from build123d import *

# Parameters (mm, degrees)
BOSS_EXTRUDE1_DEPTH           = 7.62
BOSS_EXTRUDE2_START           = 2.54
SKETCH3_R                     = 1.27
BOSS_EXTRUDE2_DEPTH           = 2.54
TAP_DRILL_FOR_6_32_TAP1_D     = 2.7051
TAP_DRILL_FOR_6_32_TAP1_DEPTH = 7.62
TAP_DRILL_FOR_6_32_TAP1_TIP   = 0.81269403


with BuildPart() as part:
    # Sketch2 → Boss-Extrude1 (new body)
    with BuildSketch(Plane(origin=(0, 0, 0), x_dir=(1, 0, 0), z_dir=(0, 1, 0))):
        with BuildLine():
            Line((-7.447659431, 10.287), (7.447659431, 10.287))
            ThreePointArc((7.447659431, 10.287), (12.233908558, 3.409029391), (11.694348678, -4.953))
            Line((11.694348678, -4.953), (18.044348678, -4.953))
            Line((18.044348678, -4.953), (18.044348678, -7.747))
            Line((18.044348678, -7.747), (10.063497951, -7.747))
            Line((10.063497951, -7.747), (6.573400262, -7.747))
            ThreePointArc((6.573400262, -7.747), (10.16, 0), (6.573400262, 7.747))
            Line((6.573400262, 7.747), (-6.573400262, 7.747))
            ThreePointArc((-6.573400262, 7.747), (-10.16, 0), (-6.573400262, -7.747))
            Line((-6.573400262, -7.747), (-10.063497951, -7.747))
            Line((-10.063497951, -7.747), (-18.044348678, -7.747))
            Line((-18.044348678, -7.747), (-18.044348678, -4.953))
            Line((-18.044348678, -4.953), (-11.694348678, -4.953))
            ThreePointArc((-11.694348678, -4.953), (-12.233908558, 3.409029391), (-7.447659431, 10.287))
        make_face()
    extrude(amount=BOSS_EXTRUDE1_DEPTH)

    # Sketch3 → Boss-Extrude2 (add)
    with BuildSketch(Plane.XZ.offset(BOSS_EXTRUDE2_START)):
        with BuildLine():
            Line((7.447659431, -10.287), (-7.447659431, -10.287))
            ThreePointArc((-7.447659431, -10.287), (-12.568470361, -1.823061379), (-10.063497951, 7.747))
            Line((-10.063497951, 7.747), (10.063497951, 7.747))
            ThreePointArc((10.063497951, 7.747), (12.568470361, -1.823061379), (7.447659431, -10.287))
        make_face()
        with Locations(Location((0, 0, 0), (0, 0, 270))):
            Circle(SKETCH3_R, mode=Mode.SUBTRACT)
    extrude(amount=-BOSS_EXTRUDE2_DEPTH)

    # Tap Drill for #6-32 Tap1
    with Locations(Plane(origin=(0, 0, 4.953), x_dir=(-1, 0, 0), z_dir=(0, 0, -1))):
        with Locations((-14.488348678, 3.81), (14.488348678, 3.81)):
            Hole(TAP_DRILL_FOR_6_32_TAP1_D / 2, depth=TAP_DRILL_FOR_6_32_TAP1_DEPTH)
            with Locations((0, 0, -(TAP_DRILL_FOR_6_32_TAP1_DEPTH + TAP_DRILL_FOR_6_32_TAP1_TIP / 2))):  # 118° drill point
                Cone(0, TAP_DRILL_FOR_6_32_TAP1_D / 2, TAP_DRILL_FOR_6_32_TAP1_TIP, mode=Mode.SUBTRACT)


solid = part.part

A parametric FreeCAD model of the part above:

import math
import FreeCAD as App
import Part
import Sketcher
from FreeCAD import Vector
Q = App.Units.Quantity

doc = App.newDocument("Part")
body = doc.addObject("PartDesign::Body", "Body")

sketch1 = body.newObject("Sketcher::SketchObject", "Sketch")
sketch1.AttachmentSupport = (doc.getObject("XZ_Plane"), [""])
sketch1.MapMode = "FlatFace"
sketch1.addGeometry([
    Part.LineSegment(Vector(7.4, -10.3, 0), Vector(-7.4, -10.3, 0)),
    Part.ArcOfCircle(Part.Circle(Vector(0, 0, 0), Vector(0, 0, 1), 12.7), math.radians(157), math.radians(234)),
    Part.LineSegment(Vector(-11.7, 5, 0), Vector(-18, 5, 0)),
    Part.LineSegment(Vector(-18, 5, 0), Vector(-18, 7.7, 0)),
    Part.LineSegment(Vector(-18, 7.7, 0), Vector(-6.6, 7.7, 0)),
    Part.ArcOfCircle(Part.Circle(Vector(0, 0, 0), Vector(0, 0, 1), 10.2), math.radians(130), math.radians(230)),
    Part.LineSegment(Vector(-6.6, -7.7, 0), Vector(6.6, -7.7, 0)),
    Part.ArcOfCircle(Part.Circle(Vector(0, 0, 0), Vector(0, 0, 1), 10.2), math.radians(-50), math.radians(50)),
    Part.LineSegment(Vector(6.6, 7.7, 0), Vector(18, 7.7, 0)),
    Part.LineSegment(Vector(18, 7.7, 0), Vector(18, 5, 0)),
    Part.LineSegment(Vector(18, 5, 0), Vector(11.7, 5, 0)),
    Part.ArcOfCircle(Part.Circle(Vector(0, 0, 0), Vector(0, 0, 1), 12.7), math.radians(-54), math.radians(23)),
], False)
sketch1.addConstraint([
    Sketcher.Constraint("Coincident", 0, 2, 1, 2),
    Sketcher.Constraint("Coincident", 1, 1, 2, 1),
    Sketcher.Constraint("Coincident", 2, 2, 3, 1),
    Sketcher.Constraint("Coincident", 3, 2, 4, 1),
    Sketcher.Constraint("Coincident", 4, 2, 5, 1),
    Sketcher.Constraint("Coincident", 5, 2, 6, 1),
    Sketcher.Constraint("Coincident", 6, 2, 7, 1),
    Sketcher.Constraint("Coincident", 7, 2, 8, 1),
    Sketcher.Constraint("Coincident", 8, 2, 9, 1),
    Sketcher.Constraint("Coincident", 9, 2, 10, 1),
    Sketcher.Constraint("Coincident", 10, 2, 11, 2),
    Sketcher.Constraint("Coincident", 11, 1, 0, 1),
    Sketcher.Constraint("Horizontal", 0),
    Sketcher.Constraint("Horizontal", 2),
    Sketcher.Constraint("Vertical", 3),
    Sketcher.Constraint("Horizontal", 4),
    Sketcher.Constraint("Horizontal", 6),
    Sketcher.Constraint("Horizontal", 8),
    Sketcher.Constraint("Vertical", 9),
    Sketcher.Constraint("Horizontal", 10),
    Sketcher.Constraint("Coincident", 1, 3, -1, 1),
    Sketcher.Constraint("Coincident", 5, 3, -1, 1),
    Sketcher.Constraint("Coincident", 7, 3, -1, 1),
    Sketcher.Constraint("Coincident", 11, 3, -1, 1),
    Sketcher.Constraint("Equal", 5, 7),
    Sketcher.Constraint("Equal", 1, 11),
    Sketcher.Constraint("Symmetric", 3, 2, 8, 2, -2),
    Sketcher.Constraint("Horizontal", 2, 2, 9, 2),
    Sketcher.Constraint("Vertical", 4, 2, 5, 2),
    Sketcher.Constraint("Radius", 1, Q("0.5 in")),
    Sketcher.Constraint("Radius", 5, Q("0.4 in")),
    Sketcher.Constraint("DistanceX", 2, 2, 2, 1, Q("0.25 in")),
    Sketcher.Constraint("DistanceY", 3, 1, 3, 2, Q("0.11 in")),
    Sketcher.Constraint("DistanceY", 0, 2, 1, 1, Q("0.6 in")),
    Sketcher.Constraint("DistanceY", 0, 2, 5, 2, Q("0.1 in")),
])
pad1 = body.newObject("PartDesign::Pad", "Pad")
pad1.Profile = sketch1
pad1.Length = Q("0.3 in")
pad1.Reversed = True

sketch2 = body.newObject("Sketcher::SketchObject", "Sketch001")
sketch2.AttachmentSupport = (doc.getObject("XZ_Plane"), [""])
sketch2.MapMode = "FlatFace"
sketch2.AttachmentOffset = App.Placement(Vector(0, 0, 0.1 * 25.4), App.Rotation())
sketch2.addGeometry([
    Part.LineSegment(Vector(-7.4, -10.3, 0), Vector(7.4, -10.3, 0)),
    Part.ArcOfCircle(Part.Circle(Vector(0, 0, 0), Vector(0, 0, 1), 12.7), math.radians(-54), math.radians(38)),
    Part.LineSegment(Vector(10.1, 7.7, 0), Vector(-10.1, 7.7, 0)),
    Part.ArcOfCircle(Part.Circle(Vector(0, 0, 0), Vector(0, 0, 1), 12.7), math.radians(142), math.radians(234)),
    Part.Circle(Vector(0, 0, 0), Vector(0, 0, 1), 1.3),
], False)
sketch2.addConstraint([
    Sketcher.Constraint("Coincident", 0, 2, 1, 1),
    Sketcher.Constraint("Coincident", 1, 2, 2, 1),
    Sketcher.Constraint("Coincident", 2, 2, 3, 1),
    Sketcher.Constraint("Coincident", 3, 2, 0, 1),
    Sketcher.Constraint("Horizontal", 0),
    Sketcher.Constraint("Horizontal", 2),
    Sketcher.Constraint("Coincident", 1, 3, -1, 1),
    Sketcher.Constraint("Coincident", 3, 3, -1, 1),
    Sketcher.Constraint("Coincident", 4, 3, -1, 1),
    Sketcher.Constraint("Equal", 1, 3),
    Sketcher.Constraint("Diameter", 4, Q("0.1 in")),
    Sketcher.Constraint("Radius", 1, Q("0.5 in")),
    Sketcher.Constraint("DistanceY", 0, 2, 1, 2, Q("0.71 in")),
    Sketcher.Constraint("DistanceY", 0, 2, -1, 1, Q("0.405 in")),
])
pad2 = body.newObject("PartDesign::Pad", "Pad001")
pad2.Profile = sketch2
pad2.Length = Q("0.1 in")
pad2.Reversed = True

sketch3 = body.newObject("Sketcher::SketchObject", "Sketch002")
sketch3.AttachmentSupport = (doc.getObject("XY_Plane"), [""])
sketch3.MapMode = "FlatFace"
sketch3.AttachmentOffset = App.Placement(Vector(0, 0, 0.195 * 25.4), App.Rotation())
sketch3.addGeometry([
    Part.Circle(Vector(14.5, 3.8, 0), Vector(0, 0, 1), 1.4),
    Part.Circle(Vector(-14.5, 3.8, 0), Vector(0, 0, 1), 1.4),
], False)
sketch3.addConstraint([
    Sketcher.Constraint("Equal", 0, 1),
    Sketcher.Constraint("Symmetric", 0, 3, 1, 3, -2),
    Sketcher.Constraint("Diameter", 0, Q("0.1065 in")),
    Sketcher.Constraint("DistanceY", -1, 1, 0, 3, Q("0.15 in")),
    Sketcher.Constraint("DistanceX", -1, 1, 0, 3, Q("14.488349 mm")),
])
doc.recompute()
hole = body.newObject("PartDesign::Hole", "Hole")
hole.Profile = sketch3
hole.ThreadType = "None"
hole.Diameter = Q("0.1065 in")
hole.DepthType = "Dimension"
hole.Depth = Q("0.3 in")
hole.DrillPoint = "Angled"
hole.DrillPointAngle = 118
hole.Reversed = True

doc.recompute()
